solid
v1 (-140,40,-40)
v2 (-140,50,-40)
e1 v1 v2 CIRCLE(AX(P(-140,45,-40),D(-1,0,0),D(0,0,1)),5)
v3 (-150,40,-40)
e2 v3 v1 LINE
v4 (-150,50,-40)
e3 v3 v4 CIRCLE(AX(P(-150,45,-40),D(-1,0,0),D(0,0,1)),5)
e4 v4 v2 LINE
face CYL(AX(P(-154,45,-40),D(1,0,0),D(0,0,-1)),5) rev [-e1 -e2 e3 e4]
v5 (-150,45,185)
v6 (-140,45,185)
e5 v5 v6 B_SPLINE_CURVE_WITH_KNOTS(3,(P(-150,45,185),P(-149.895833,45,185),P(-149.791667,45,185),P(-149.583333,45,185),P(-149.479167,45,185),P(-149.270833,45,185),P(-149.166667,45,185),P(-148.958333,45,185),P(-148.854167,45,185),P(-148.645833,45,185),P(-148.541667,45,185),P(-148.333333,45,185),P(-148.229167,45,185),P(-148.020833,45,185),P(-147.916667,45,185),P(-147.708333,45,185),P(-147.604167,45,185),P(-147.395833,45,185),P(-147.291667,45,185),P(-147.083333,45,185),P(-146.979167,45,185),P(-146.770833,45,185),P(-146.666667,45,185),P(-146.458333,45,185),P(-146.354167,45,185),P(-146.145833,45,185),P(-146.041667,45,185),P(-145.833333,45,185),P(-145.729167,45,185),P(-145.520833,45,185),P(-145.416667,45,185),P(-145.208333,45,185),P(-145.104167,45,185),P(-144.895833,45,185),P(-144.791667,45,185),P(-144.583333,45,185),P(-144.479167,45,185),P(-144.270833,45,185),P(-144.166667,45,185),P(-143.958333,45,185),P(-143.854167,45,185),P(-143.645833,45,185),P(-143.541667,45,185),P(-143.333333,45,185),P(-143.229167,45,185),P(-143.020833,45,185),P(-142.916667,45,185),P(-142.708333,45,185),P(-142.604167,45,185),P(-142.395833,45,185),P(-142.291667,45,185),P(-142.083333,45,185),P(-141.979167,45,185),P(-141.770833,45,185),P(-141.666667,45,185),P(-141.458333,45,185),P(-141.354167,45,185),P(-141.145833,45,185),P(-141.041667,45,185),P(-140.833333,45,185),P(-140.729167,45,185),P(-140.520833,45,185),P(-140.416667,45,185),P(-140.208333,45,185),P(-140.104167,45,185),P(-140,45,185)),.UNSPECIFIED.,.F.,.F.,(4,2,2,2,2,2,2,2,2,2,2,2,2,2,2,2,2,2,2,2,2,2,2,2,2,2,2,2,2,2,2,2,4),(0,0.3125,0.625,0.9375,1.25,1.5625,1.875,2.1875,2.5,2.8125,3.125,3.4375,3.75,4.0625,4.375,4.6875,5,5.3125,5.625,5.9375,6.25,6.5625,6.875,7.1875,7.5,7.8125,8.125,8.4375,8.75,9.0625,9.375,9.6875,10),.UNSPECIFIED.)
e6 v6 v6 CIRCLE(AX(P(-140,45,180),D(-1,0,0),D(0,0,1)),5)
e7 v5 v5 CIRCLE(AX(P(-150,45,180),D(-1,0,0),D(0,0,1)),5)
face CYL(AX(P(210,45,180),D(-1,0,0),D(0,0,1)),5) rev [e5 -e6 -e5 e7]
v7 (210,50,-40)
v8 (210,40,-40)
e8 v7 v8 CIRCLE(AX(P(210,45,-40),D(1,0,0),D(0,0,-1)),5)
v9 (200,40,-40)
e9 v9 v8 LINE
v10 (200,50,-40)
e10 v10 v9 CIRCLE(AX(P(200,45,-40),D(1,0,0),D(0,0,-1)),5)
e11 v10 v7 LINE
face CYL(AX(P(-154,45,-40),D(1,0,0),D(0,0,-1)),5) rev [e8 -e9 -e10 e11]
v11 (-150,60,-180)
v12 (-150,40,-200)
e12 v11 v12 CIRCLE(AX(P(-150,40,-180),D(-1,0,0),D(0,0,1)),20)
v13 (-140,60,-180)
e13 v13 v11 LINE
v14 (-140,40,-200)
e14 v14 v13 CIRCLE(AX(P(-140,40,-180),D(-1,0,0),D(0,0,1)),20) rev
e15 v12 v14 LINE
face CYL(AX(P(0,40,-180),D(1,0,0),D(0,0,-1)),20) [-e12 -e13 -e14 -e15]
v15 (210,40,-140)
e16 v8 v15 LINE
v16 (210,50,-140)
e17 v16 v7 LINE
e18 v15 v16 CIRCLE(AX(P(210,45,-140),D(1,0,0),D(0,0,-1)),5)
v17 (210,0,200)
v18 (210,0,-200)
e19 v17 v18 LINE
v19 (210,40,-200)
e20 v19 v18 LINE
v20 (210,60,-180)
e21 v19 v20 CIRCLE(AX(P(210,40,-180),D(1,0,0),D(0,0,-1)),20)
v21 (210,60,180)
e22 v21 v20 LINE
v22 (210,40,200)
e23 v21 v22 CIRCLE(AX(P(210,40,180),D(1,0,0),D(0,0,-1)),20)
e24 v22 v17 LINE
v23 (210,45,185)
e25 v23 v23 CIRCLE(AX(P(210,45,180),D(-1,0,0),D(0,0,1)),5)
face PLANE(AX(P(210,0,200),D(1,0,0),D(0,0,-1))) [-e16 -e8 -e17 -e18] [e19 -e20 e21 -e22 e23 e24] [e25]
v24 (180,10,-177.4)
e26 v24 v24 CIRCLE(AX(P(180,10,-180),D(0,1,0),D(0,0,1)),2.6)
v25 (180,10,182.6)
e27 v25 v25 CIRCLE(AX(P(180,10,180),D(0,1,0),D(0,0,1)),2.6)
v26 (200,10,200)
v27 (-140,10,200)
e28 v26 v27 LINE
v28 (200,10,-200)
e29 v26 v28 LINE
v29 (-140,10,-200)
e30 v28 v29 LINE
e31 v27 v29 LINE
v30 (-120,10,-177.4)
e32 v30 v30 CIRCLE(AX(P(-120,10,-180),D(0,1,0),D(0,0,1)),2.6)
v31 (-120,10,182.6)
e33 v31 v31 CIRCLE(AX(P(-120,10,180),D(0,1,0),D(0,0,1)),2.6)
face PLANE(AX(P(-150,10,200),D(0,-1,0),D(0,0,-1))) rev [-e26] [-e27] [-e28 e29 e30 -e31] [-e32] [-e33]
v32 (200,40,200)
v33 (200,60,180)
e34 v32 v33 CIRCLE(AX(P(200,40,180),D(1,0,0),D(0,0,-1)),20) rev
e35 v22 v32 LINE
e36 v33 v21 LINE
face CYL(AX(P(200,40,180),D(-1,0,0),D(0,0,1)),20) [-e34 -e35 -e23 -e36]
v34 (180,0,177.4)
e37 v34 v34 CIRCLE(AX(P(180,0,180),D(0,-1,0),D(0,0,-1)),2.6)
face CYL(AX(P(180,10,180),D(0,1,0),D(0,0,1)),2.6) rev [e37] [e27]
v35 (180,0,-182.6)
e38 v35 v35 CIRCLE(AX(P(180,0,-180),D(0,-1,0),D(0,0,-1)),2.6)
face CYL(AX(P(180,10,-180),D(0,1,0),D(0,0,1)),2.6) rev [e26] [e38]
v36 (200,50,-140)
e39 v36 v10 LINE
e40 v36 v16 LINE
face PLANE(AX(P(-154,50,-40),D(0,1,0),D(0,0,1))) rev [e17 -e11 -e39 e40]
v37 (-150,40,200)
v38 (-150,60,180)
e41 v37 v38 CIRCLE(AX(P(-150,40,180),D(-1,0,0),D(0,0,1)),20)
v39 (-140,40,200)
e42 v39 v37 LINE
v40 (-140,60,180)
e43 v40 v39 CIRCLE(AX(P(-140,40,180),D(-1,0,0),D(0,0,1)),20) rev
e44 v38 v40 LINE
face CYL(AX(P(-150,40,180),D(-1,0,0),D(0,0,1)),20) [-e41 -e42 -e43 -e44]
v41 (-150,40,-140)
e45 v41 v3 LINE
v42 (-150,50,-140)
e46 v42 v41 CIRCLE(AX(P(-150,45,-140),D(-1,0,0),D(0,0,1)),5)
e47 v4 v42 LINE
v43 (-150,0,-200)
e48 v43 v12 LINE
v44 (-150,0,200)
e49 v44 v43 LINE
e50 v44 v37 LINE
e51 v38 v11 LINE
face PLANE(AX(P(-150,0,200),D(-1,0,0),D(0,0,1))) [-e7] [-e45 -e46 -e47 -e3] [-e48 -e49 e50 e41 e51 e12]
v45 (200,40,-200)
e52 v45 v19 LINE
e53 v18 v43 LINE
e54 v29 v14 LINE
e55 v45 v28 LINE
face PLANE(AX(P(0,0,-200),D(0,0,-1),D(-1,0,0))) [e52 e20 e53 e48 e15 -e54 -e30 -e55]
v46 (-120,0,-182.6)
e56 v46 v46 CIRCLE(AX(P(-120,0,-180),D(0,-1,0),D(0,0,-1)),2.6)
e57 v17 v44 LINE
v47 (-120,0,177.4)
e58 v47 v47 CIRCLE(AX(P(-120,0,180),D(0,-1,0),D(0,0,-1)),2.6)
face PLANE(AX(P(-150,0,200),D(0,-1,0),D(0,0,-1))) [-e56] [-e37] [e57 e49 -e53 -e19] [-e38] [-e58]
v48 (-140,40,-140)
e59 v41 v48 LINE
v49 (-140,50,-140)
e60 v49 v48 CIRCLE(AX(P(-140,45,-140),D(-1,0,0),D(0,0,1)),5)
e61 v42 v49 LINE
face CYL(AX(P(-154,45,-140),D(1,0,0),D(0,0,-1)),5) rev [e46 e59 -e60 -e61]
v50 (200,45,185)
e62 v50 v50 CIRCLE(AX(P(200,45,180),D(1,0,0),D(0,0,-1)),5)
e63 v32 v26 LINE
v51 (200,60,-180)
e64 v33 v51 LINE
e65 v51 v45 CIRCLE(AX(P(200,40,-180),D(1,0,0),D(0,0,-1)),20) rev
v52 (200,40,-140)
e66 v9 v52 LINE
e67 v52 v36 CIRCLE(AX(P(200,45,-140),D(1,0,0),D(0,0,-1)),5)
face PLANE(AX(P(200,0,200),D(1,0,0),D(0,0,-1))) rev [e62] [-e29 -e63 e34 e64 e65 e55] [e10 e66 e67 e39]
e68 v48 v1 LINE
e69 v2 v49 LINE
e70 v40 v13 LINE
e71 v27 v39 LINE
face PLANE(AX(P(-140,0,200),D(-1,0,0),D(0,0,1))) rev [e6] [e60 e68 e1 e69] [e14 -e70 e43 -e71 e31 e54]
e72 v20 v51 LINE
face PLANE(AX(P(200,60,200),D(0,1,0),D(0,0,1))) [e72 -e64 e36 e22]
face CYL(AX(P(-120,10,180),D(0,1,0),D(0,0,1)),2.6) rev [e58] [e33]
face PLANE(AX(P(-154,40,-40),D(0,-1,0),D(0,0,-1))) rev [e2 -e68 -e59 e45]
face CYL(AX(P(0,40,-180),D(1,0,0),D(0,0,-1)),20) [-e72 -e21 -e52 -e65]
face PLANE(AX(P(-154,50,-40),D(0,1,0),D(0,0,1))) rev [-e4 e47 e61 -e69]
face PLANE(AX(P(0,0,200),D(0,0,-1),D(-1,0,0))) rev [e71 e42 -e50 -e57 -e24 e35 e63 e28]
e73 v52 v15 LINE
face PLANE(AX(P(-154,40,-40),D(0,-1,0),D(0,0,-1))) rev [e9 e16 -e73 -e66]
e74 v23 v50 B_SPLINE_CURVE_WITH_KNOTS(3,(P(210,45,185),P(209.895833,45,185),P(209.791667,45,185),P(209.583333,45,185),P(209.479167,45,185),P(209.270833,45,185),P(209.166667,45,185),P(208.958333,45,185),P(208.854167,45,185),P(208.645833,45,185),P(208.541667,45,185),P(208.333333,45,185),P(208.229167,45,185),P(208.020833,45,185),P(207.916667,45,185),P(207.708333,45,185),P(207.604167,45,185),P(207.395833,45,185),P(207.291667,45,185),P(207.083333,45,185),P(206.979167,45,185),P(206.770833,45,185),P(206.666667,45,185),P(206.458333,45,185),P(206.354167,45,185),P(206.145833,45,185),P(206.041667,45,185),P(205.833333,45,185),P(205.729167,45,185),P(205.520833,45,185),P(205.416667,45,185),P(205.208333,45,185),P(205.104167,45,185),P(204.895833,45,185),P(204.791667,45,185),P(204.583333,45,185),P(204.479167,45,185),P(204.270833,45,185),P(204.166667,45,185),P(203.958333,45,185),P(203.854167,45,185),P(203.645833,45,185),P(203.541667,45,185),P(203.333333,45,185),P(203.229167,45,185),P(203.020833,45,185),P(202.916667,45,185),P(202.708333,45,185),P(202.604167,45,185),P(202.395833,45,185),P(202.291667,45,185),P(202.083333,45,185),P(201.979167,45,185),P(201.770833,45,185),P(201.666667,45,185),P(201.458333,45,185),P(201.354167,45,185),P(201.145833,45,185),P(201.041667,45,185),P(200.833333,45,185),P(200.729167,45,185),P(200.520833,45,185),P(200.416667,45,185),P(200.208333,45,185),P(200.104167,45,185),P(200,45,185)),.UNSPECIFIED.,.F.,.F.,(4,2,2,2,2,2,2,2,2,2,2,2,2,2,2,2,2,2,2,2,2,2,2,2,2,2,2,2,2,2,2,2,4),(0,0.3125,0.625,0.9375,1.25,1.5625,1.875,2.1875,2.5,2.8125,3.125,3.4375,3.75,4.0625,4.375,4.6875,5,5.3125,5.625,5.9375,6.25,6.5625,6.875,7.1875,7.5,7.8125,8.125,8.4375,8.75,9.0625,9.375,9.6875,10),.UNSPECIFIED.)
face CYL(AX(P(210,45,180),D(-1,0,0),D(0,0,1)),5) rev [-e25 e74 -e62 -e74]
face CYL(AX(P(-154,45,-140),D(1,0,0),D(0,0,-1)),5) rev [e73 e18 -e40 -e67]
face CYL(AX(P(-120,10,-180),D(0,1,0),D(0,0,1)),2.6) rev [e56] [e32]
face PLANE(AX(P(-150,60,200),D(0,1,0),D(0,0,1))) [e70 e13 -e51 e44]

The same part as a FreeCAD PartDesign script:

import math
import FreeCAD as App
import Part
import Sketcher
from FreeCAD import Vector


def edges_at(feature, points):
    """Names of the edges that pass closest to the given points."""
    edges = feature.Shape.Edges
    near = lambda p: min(range(len(edges)), key=lambda i: edges[i].distToShape(Part.Vertex(*p))[0])
    return sorted({f"Edge{near(p) + 1}" for p in points})


def add_polygon(sketch, points):
    """Adds a closed chain of lines whose ends are joined by coincident constraints."""
    first, n = sketch.GeometryCount, len(points)
    for a, b in zip(points, points[1:] + points[:1]):
        sketch.addGeometry(Part.LineSegment(App.Vector(*a, 0), App.Vector(*b, 0)), False)
    for i in range(n):
        sketch.addConstraint(Sketcher.Constraint("Coincident", first + i, 2, first + (i + 1) % n, 1))

doc = App.newDocument("Part")
body = doc.addObject("PartDesign::Body", "Body")

# Sketch on XY plane
sketch1 = body.newObject("Sketcher::SketchObject", "Sketch")
sketch1.AttachmentSupport = (doc.getObject("XY_Plane"), [""])
sketch1.MapMode = "FlatFace"
add_polygon(sketch1, [(-150, 60), (-150, 0), (210, 0), (210, 60), (200, 60), (200, 10), (-140, 10), (-140, 60)])  # lines 0-7
sketch1.addConstraint([
    Sketcher.Constraint("Vertical", 0),
    Sketcher.Constraint("Horizontal", 1),
    Sketcher.Constraint("Vertical", 2),
    Sketcher.Constraint("Horizontal", 3),
    Sketcher.Constraint("Vertical", 4),
    Sketcher.Constraint("Horizontal", 5),
    Sketcher.Constraint("Vertical", 6),
    Sketcher.Constraint("Horizontal", 7),
    Sketcher.Constraint("PointOnObject", 0, 2, -1),
    Sketcher.Constraint("Horizontal", 3, 2, 6, 2),
    Sketcher.Constraint("Equal", 3, 7),
    Sketcher.Constraint("DistanceX", 1, 1, 1, 2, 360.0),
    Sketcher.Constraint("DistanceX", 3, 2, 3, 1, 10.0),
    Sketcher.Constraint("DistanceY", 0, 2, 0, 1, 60.0),
    Sketcher.Constraint("DistanceY", 4, 2, 4, 1, 50.0),
    Sketcher.Constraint("DistanceX", 0, 2, -1, 1, 150.0),
])
pad1 = body.newObject("PartDesign::Pad", "Pad")
pad1.Profile = sketch1
pad1.Length = 400
pad1.Midplane = True

# Sketch on YZ plane
sketch2 = body.newObject("Sketcher::SketchObject", "Sketch001")
sketch2.AttachmentSupport = (doc.getObject("YZ_Plane"), [""])
sketch2.MapMode = "FlatFace"
sketch2.AttachmentOffset = App.Placement(Vector(0, 0, 210), App.Rotation())
sketch2.addGeometry([
    Part.LineSegment(Vector(50, -140, 0), Vector(50, -40, 0)),
    Part.ArcOfCircle(Part.Circle(Vector(45, -40, 0), Vector(0, 0, 1), 5), math.radians(0), math.radians(180)),
    Part.LineSegment(Vector(40, -40, 0), Vector(40, -140, 0)),
    Part.ArcOfCircle(Part.Circle(Vector(45, -140, 0), Vector(0, 0, 1), 5), math.radians(180), math.radians(360)),
], False)
sketch2.addConstraint([
    Sketcher.Constraint("Tangent", 0, 2, 1, 1),
    Sketcher.Constraint("Tangent", 1, 2, 2, 1),
    Sketcher.Constraint("Tangent", 2, 2, 3, 1),
    Sketcher.Constraint("Tangent", 3, 2, 0, 1),
    Sketcher.Constraint("Vertical", 0),
    Sketcher.Constraint("Vertical", 2),
    Sketcher.Constraint("Radius", 1, 5.0),
    Sketcher.Constraint("DistanceY", 0, 1, 0, 2, 100.0),
    Sketcher.Constraint("DistanceX", -1, 1, 1, 3, 45.0),
    Sketcher.Constraint("DistanceY", 1, 3, -1, 1, 40.0),
])
pocket1 = body.newObject("PartDesign::Pocket", "Pocket")
pocket1.Profile = sketch2
pocket1.Length = 364

# Sketch on YZ plane
sketch3 = body.newObject("Sketcher::SketchObject", "Sketch002")
sketch3.AttachmentSupport = (doc.getObject("YZ_Plane"), [""])
sketch3.MapMode = "FlatFace"
sketch3.AttachmentOffset = App.Placement(Vector(0, 0, -150), App.Rotation())
sketch3.addGeometry(Part.Circle(Vector(45, 180, 0), Vector(0, 0, 1), 5), False)
sketch3.addConstraint([
    Sketcher.Constraint("Diameter", 0, 10.0),
    Sketcher.Constraint("DistanceX", -1, 1, 0, 3, 45.0),
    Sketcher.Constraint("DistanceY", -1, 1, 0, 3, 180.0),
])
pocket2 = body.newObject("PartDesign::Pocket", "Pocket001")
pocket2.Profile = sketch3
pocket2.Type = "ThroughAll"
pocket2.Reversed = True
doc.recompute()

fillet = body.newObject("PartDesign::Fillet", "Fillet")
fillet.Base = (pocket2, edges_at(pocket2, [
    (205, 60, 200),
    (-145, 60, 200),
    (205, 60, -200),
    (-145, 60, -200),
]))
fillet.Radius = 20

# Sketch on XZ plane
sketch4 = body.newObject("Sketcher::SketchObject", "Sketch003")
sketch4.AttachmentSupport = (doc.getObject("XZ_Plane"), [""])
sketch4.MapMode = "FlatFace"
sketch4.AttachmentOffset = App.Placement(Vector(0, 0, -10), App.Rotation())
sketch4.addGeometry([
    Part.Circle(Vector(-120, 180, 0), Vector(0, 0, 1), 2.6),
    Part.Circle(Vector(180, 180, 0), Vector(0, 0, 1), 2.6),
    Part.Circle(Vector(180, -180, 0), Vector(0, 0, 1), 2.6),
    Part.Circle(Vector(-120, -180, 0), Vector(0, 0, 1), 2.6),
], False)
sketch4.addConstraint([
    Sketcher.Constraint("Equal", 0, 1),
    Sketcher.Constraint("Equal", 1, 2),
    Sketcher.Constraint("Equal", 2, 3),
    Sketcher.Constraint("Symmetric", 1, 3, 2, 3, -1),
    Sketcher.Constraint("Symmetric", 0, 3, 3, 3, -1),
    Sketcher.Constraint("Horizontal", 0, 3, 1, 3),
    Sketcher.Constraint("Diameter", 0, 5.2),
    Sketcher.Constraint("DistanceX", 0, 3, -1, 1, 120.0),
    Sketcher.Constraint("DistanceY", -1, 1, 0, 3, 180.0),
    Sketcher.Constraint("DistanceX", -1, 1, 1, 3, 180.0),
])
doc.recompute()
hole = body.newObject("PartDesign::Hole", "Hole")
hole.Profile = sketch4
hole.ThreadType = "None"
hole.Diameter = 5.2
hole.DepthType = "Dimension"
hole.Depth = 12
hole.DrillPoint = "Angled"
hole.DrillPointAngle = 118
hole.Reversed = True

doc.recompute()
